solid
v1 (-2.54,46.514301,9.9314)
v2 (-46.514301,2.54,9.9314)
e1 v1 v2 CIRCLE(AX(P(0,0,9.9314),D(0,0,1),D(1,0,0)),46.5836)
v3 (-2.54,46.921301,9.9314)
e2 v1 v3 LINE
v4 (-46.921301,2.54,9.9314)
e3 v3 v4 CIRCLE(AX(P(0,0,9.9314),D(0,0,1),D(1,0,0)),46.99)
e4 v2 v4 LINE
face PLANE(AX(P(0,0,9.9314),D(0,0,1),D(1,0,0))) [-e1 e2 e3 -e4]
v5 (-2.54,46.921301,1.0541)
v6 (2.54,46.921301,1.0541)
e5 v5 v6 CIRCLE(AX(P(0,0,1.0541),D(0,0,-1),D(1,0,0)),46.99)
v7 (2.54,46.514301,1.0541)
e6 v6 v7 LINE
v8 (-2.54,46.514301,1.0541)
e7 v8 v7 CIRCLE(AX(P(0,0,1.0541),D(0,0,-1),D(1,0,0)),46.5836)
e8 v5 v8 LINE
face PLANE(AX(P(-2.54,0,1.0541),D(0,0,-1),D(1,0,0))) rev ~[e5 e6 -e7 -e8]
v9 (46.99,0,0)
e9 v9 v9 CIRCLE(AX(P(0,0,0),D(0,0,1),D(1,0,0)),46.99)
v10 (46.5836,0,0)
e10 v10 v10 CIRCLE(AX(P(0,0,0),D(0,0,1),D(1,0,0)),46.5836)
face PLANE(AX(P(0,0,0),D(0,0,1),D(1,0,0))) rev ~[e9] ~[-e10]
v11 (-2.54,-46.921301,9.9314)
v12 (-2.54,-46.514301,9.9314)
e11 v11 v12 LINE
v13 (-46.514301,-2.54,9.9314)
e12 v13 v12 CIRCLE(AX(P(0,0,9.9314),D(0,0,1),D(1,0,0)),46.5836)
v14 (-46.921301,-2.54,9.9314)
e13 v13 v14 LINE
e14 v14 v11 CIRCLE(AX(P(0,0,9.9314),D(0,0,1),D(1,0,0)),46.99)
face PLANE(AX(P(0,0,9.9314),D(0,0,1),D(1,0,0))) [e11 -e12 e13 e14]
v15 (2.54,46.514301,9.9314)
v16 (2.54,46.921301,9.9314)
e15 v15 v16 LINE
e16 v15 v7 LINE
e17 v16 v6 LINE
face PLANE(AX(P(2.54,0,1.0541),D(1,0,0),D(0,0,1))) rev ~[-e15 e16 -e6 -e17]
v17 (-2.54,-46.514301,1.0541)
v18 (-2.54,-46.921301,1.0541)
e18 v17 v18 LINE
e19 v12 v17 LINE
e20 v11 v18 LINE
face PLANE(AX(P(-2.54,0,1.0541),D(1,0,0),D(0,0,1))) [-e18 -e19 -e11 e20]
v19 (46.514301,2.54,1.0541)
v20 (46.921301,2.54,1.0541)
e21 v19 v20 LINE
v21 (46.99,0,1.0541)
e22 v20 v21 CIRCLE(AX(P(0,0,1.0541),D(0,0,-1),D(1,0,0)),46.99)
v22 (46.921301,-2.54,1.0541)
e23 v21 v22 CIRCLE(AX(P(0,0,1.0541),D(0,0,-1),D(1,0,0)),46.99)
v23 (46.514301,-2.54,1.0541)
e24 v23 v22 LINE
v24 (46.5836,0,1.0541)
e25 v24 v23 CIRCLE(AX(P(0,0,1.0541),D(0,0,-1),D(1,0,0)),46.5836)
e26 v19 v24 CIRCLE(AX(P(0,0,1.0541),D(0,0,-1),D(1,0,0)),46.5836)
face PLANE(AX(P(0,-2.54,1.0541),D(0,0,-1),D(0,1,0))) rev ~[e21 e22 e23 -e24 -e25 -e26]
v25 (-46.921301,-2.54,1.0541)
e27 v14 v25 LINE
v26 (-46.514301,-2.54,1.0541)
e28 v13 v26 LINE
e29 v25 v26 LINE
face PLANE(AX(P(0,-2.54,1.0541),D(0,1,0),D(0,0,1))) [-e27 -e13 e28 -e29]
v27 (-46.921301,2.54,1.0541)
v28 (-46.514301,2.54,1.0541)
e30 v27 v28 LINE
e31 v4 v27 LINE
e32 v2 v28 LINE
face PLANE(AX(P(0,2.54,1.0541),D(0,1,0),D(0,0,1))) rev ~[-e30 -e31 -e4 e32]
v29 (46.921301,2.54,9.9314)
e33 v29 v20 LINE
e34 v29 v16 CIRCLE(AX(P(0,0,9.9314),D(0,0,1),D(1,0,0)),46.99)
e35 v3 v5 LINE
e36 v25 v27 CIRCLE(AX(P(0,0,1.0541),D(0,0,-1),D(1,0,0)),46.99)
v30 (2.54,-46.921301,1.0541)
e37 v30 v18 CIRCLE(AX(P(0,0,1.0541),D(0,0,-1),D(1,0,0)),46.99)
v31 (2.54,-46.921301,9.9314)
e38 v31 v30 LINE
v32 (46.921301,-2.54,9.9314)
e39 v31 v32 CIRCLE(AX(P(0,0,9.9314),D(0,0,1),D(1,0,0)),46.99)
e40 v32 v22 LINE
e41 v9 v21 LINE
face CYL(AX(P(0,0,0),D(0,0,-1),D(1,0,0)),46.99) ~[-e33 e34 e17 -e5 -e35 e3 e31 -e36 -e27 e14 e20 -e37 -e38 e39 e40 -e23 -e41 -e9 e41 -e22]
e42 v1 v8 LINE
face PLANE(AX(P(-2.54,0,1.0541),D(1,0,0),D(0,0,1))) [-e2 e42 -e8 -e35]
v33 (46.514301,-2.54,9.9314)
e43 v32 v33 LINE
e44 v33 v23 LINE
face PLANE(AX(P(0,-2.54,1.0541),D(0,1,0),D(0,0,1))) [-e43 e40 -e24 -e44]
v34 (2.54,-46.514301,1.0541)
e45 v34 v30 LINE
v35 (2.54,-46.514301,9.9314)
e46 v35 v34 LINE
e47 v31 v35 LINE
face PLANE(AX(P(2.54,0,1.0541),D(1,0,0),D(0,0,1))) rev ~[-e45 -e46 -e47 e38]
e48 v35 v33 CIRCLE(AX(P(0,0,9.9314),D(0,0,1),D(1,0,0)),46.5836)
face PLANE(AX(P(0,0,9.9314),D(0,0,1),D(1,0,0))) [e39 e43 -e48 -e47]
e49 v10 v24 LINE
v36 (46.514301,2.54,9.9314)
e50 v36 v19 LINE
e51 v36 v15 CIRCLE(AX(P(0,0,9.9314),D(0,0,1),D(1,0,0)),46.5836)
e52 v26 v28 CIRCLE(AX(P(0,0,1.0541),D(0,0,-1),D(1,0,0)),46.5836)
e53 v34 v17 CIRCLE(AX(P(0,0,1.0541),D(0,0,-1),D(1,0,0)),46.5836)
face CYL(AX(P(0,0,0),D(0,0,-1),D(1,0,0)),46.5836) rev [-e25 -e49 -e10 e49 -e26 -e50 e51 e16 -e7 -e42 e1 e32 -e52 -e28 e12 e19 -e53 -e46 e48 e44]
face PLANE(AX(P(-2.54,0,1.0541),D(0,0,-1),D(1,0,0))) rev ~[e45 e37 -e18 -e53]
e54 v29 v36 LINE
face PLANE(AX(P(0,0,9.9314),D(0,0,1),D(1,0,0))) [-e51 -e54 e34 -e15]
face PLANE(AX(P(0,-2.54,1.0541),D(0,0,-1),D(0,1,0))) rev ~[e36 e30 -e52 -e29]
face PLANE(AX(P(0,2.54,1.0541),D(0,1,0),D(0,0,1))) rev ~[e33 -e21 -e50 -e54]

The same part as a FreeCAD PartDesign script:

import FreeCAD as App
import Part
import Sketcher
Q = App.Units.Quantity

doc = App.newDocument("Part")
body = doc.addObject("PartDesign::Body", "Body")

# Sketch on XY plane
sketch1 = body.newObject("Sketcher::SketchObject", "Sketch")
sketch1.AttachmentSupport = (doc.getObject("XY_Plane"), [""])
sketch1.MapMode = "FlatFace"
sketch1.addGeometry([
    Part.Circle(App.Vector(0, 0, 0), App.Vector(0, 0, 1), 47),
    Part.Circle(App.Vector(0, 0, 0), App.Vector(0, 0, 1), 47),
], False)
sketch1.addConstraint([
    Sketcher.Constraint("Coincident", 0, 3, -1, 1),
    Sketcher.Constraint("Coincident", 1, 3, -1, 1),
    Sketcher.Constraint("Diameter", 0, Q("3.7 in")),
    Sketcher.Constraint("Diameter", 1, Q("3.668 in")),
])
pad1 = body.newObject("PartDesign::Pad", "Pad")
pad1.Profile = sketch1
pad1.Length = Q("0.391 in")

# Sketch on YZ plane
sketch2 = body.newObject("Sketcher::SketchObject", "Sketch001")
sketch2.AttachmentSupport = (doc.getObject("YZ_Plane"), [""])
sketch2.MapMode = "FlatFace"
sketch2.addGeometry([
    Part.LineSegment(App.Vector(-3, 14, 0), App.Vector(-3, 1, 0)),
    Part.LineSegment(App.Vector(-3, 1, 0), App.Vector(3, 1, 0)),
    Part.LineSegment(App.Vector(3, 1, 0), App.Vector(3, 14, 0)),
    Part.LineSegment(App.Vector(3, 14, 0), App.Vector(-3, 14, 0)),
], False)
sketch2.addConstraint([
    Sketcher.Constraint("Coincident", 0, 2, 1, 1),
    Sketcher.Constraint("Coincident", 1, 2, 2, 1),
    Sketcher.Constraint("Coincident", 2, 2, 3, 1),
    Sketcher.Constraint("Coincident", 3, 2, 0, 1),
    Sketcher.Constraint("Vertical", 0),
    Sketcher.Constraint("Horizontal", 1),
    Sketcher.Constraint("Vertical", 2),
    Sketcher.Constraint("Horizontal", 3),
    Sketcher.Constraint("DistanceX", 1, 1, 1, 2, Q("0.2 in")),
    Sketcher.Constraint("DistanceY", 0, 2, 0, 1, Q("0.5 in")),
    Sketcher.Constraint("DistanceX", 0, 2, -1, 1, Q("0.1 in")),
    Sketcher.Constraint("DistanceY", -1, 1, 0, 2, Q("0.0415 in")),
])
pocket1 = body.newObject("PartDesign::Pocket", "Pocket")
pocket1.Profile = sketch2
pocket1.Length = Q("6 in")
pocket1.Midplane = True

# Sketch on XZ plane
sketch3 = body.newObject("Sketcher::SketchObject", "Sketch002")
sketch3.AttachmentSupport = (doc.getObject("XZ_Plane"), [""])
sketch3.MapMode = "FlatFace"
sketch3.addGeometry([
    Part.LineSegment(App.Vector(-3, 14, 0), App.Vector(-3, 1, 0)),
    Part.LineSegment(App.Vector(-3, 1, 0), App.Vector(3, 1, 0)),
    Part.LineSegment(App.Vector(3, 1, 0), App.Vector(3, 14, 0)),
    Part.LineSegment(App.Vector(3, 14, 0), App.Vector(-3, 14, 0)),
], False)
sketch3.addConstraint([
    Sketcher.Constraint("Coincident", 0, 2, 1, 1),
    Sketcher.Constraint("Coincident", 1, 2, 2, 1),
    Sketcher.Constraint("Coincident", 2, 2, 3, 1),
    Sketcher.Constraint("Coincident", 3, 2, 0, 1),
    Sketcher.Constraint("Vertical", 0),
    Sketcher.Constraint("Horizontal", 1),
    Sketcher.Constraint("Vertical", 2),
    Sketcher.Constraint("Horizontal", 3),
    Sketcher.Constraint("DistanceX", 1, 1, 1, 2, Q("0.2 in")),
    Sketcher.Constraint("DistanceY", 0, 2, 0, 1, Q("0.5 in")),
    Sketcher.Constraint("DistanceX", 0, 2, -1, 1, Q("0.1 in")),
    Sketcher.Constraint("DistanceY", -1, 1, 0, 2, Q("0.0415 in")),
])
pocket2 = body.newObject("PartDesign::Pocket", "Pocket001")
pocket2.Profile = sketch3
pocket2.Length = Q("6 in")
pocket2.Midplane = True

doc.recompute()
